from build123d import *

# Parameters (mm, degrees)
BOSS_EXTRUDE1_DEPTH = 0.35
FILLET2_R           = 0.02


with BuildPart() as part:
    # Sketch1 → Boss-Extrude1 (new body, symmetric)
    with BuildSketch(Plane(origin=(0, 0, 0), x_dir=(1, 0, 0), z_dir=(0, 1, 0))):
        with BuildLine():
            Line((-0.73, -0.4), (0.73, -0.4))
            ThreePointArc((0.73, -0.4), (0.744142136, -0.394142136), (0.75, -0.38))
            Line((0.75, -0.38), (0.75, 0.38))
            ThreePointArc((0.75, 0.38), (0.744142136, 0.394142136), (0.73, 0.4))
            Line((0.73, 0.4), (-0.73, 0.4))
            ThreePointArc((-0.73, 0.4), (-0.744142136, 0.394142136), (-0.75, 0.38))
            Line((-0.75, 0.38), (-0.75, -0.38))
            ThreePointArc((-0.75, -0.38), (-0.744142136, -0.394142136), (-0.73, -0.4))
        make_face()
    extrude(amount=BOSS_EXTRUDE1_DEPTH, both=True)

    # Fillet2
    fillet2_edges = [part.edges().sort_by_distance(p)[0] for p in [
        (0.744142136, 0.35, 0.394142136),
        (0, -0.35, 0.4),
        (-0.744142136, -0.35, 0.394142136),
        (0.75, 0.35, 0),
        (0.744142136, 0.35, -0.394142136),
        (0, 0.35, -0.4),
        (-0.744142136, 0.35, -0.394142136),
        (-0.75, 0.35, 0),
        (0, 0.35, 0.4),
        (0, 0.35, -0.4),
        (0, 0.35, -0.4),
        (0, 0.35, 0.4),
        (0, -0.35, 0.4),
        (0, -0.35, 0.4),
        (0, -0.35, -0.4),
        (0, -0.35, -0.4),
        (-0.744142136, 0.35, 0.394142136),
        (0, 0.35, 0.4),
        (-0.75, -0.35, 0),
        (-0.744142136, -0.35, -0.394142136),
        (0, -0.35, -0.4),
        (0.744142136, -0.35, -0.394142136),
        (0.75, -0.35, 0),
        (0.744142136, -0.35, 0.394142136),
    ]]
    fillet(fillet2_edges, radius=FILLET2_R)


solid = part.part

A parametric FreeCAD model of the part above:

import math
import FreeCAD as App
import Part
import Sketcher
from FreeCAD import Vector
Q = App.Units.Quantity

doc = App.newDocument("Part")
body = doc.addObject("PartDesign::Body", "Body")

# Sketch on XZ plane
sketch1 = doc.addObject("Sketcher::SketchObject", "Sketch")
body.addObject(sketch1)
sketch1.AttachmentSupport = (doc.XZ_Plane, [""])
sketch1.MapMode = "FlatFace"
sketch1.addGeometry([
    Part.LineSegment(Vector(-0.73, 0.4, 0), Vector(0.73, 0.4, 0)),  # 0
    Part.ArcOfCircle(Part.Circle(Vector(0.73, 0.38, 0), Vector(0, 0, 1), 0.02), math.radians(0), math.radians(90)),  # 1
    Part.LineSegment(Vector(0.75, 0.38, 0), Vector(0.75, -0.38, 0)),  # 2
    Part.ArcOfCircle(Part.Circle(Vector(0.73, -0.38, 0), Vector(0, 0, 1), 0.02), math.radians(-90), math.radians(0)),  # 3
    Part.LineSegment(Vector(0.73, -0.4, 0), Vector(-0.73, -0.4, 0)),  # 4
    Part.ArcOfCircle(Part.Circle(Vector(-0.73, -0.38, 0), Vector(0, 0, 1), 0.02), math.radians(180), math.radians(270)),  # 5
    Part.LineSegment(Vector(-0.75, -0.38, 0), Vector(-0.75, 0.38, 0)),  # 6
    Part.ArcOfCircle(Part.Circle(Vector(-0.73, 0.38, 0), Vector(0, 0, 1), 0.02), math.radians(90), math.radians(180)),  # 7
], False)
sketch1.addConstraint([
    Sketcher.Constraint("Tangent", 0, 2, 1, 2),
    Sketcher.Constraint("Tangent", 1, 1, 2, 1),
    Sketcher.Constraint("Tangent", 2, 2, 3, 2),
    Sketcher.Constraint("Tangent", 3, 1, 4, 1),
    Sketcher.Constraint("Tangent", 4, 2, 5, 2),
    Sketcher.Constraint("Tangent", 5, 1, 6, 1),
    Sketcher.Constraint("Tangent", 6, 2, 7, 2),
    Sketcher.Constraint("Tangent", 7, 1, 0, 1),
    Sketcher.Constraint("Horizontal", 0),
    Sketcher.Constraint("Vertical", 2),
    Sketcher.Constraint("Horizontal", 4),
    Sketcher.Constraint("Vertical", 6),
    Sketcher.Constraint("Equal", 1, 3),
    Sketcher.Constraint("Equal", 3, 5),
    Sketcher.Constraint("Equal", 5, 7),
    Sketcher.Constraint("Symmetric", 1, 3, 5, 3, -1, 1),
    Sketcher.Constraint("Radius", 1, Q("0.02 mm")),
    Sketcher.Constraint("DistanceX", 0, 1, 0, 2, Q("1.46 mm")),
    Sketcher.Constraint("DistanceY", 2, 2, 2, 1, Q("0.76 mm")),
])
pad1 = doc.addObject("PartDesign::Pad", "Pad")
body.addObject(pad1)
pad1.Profile = sketch1
pad1.Length = 0.7
pad1.Midplane = True
doc.recompute()

fillet = doc.addObject("PartDesign::Fillet", "Fillet")
body.addObject(fillet)
fillet.Base = (pad1, ["Edge1"])
fillet.UseAllEdges = True
fillet.Radius = 0.02

doc.recompute()
